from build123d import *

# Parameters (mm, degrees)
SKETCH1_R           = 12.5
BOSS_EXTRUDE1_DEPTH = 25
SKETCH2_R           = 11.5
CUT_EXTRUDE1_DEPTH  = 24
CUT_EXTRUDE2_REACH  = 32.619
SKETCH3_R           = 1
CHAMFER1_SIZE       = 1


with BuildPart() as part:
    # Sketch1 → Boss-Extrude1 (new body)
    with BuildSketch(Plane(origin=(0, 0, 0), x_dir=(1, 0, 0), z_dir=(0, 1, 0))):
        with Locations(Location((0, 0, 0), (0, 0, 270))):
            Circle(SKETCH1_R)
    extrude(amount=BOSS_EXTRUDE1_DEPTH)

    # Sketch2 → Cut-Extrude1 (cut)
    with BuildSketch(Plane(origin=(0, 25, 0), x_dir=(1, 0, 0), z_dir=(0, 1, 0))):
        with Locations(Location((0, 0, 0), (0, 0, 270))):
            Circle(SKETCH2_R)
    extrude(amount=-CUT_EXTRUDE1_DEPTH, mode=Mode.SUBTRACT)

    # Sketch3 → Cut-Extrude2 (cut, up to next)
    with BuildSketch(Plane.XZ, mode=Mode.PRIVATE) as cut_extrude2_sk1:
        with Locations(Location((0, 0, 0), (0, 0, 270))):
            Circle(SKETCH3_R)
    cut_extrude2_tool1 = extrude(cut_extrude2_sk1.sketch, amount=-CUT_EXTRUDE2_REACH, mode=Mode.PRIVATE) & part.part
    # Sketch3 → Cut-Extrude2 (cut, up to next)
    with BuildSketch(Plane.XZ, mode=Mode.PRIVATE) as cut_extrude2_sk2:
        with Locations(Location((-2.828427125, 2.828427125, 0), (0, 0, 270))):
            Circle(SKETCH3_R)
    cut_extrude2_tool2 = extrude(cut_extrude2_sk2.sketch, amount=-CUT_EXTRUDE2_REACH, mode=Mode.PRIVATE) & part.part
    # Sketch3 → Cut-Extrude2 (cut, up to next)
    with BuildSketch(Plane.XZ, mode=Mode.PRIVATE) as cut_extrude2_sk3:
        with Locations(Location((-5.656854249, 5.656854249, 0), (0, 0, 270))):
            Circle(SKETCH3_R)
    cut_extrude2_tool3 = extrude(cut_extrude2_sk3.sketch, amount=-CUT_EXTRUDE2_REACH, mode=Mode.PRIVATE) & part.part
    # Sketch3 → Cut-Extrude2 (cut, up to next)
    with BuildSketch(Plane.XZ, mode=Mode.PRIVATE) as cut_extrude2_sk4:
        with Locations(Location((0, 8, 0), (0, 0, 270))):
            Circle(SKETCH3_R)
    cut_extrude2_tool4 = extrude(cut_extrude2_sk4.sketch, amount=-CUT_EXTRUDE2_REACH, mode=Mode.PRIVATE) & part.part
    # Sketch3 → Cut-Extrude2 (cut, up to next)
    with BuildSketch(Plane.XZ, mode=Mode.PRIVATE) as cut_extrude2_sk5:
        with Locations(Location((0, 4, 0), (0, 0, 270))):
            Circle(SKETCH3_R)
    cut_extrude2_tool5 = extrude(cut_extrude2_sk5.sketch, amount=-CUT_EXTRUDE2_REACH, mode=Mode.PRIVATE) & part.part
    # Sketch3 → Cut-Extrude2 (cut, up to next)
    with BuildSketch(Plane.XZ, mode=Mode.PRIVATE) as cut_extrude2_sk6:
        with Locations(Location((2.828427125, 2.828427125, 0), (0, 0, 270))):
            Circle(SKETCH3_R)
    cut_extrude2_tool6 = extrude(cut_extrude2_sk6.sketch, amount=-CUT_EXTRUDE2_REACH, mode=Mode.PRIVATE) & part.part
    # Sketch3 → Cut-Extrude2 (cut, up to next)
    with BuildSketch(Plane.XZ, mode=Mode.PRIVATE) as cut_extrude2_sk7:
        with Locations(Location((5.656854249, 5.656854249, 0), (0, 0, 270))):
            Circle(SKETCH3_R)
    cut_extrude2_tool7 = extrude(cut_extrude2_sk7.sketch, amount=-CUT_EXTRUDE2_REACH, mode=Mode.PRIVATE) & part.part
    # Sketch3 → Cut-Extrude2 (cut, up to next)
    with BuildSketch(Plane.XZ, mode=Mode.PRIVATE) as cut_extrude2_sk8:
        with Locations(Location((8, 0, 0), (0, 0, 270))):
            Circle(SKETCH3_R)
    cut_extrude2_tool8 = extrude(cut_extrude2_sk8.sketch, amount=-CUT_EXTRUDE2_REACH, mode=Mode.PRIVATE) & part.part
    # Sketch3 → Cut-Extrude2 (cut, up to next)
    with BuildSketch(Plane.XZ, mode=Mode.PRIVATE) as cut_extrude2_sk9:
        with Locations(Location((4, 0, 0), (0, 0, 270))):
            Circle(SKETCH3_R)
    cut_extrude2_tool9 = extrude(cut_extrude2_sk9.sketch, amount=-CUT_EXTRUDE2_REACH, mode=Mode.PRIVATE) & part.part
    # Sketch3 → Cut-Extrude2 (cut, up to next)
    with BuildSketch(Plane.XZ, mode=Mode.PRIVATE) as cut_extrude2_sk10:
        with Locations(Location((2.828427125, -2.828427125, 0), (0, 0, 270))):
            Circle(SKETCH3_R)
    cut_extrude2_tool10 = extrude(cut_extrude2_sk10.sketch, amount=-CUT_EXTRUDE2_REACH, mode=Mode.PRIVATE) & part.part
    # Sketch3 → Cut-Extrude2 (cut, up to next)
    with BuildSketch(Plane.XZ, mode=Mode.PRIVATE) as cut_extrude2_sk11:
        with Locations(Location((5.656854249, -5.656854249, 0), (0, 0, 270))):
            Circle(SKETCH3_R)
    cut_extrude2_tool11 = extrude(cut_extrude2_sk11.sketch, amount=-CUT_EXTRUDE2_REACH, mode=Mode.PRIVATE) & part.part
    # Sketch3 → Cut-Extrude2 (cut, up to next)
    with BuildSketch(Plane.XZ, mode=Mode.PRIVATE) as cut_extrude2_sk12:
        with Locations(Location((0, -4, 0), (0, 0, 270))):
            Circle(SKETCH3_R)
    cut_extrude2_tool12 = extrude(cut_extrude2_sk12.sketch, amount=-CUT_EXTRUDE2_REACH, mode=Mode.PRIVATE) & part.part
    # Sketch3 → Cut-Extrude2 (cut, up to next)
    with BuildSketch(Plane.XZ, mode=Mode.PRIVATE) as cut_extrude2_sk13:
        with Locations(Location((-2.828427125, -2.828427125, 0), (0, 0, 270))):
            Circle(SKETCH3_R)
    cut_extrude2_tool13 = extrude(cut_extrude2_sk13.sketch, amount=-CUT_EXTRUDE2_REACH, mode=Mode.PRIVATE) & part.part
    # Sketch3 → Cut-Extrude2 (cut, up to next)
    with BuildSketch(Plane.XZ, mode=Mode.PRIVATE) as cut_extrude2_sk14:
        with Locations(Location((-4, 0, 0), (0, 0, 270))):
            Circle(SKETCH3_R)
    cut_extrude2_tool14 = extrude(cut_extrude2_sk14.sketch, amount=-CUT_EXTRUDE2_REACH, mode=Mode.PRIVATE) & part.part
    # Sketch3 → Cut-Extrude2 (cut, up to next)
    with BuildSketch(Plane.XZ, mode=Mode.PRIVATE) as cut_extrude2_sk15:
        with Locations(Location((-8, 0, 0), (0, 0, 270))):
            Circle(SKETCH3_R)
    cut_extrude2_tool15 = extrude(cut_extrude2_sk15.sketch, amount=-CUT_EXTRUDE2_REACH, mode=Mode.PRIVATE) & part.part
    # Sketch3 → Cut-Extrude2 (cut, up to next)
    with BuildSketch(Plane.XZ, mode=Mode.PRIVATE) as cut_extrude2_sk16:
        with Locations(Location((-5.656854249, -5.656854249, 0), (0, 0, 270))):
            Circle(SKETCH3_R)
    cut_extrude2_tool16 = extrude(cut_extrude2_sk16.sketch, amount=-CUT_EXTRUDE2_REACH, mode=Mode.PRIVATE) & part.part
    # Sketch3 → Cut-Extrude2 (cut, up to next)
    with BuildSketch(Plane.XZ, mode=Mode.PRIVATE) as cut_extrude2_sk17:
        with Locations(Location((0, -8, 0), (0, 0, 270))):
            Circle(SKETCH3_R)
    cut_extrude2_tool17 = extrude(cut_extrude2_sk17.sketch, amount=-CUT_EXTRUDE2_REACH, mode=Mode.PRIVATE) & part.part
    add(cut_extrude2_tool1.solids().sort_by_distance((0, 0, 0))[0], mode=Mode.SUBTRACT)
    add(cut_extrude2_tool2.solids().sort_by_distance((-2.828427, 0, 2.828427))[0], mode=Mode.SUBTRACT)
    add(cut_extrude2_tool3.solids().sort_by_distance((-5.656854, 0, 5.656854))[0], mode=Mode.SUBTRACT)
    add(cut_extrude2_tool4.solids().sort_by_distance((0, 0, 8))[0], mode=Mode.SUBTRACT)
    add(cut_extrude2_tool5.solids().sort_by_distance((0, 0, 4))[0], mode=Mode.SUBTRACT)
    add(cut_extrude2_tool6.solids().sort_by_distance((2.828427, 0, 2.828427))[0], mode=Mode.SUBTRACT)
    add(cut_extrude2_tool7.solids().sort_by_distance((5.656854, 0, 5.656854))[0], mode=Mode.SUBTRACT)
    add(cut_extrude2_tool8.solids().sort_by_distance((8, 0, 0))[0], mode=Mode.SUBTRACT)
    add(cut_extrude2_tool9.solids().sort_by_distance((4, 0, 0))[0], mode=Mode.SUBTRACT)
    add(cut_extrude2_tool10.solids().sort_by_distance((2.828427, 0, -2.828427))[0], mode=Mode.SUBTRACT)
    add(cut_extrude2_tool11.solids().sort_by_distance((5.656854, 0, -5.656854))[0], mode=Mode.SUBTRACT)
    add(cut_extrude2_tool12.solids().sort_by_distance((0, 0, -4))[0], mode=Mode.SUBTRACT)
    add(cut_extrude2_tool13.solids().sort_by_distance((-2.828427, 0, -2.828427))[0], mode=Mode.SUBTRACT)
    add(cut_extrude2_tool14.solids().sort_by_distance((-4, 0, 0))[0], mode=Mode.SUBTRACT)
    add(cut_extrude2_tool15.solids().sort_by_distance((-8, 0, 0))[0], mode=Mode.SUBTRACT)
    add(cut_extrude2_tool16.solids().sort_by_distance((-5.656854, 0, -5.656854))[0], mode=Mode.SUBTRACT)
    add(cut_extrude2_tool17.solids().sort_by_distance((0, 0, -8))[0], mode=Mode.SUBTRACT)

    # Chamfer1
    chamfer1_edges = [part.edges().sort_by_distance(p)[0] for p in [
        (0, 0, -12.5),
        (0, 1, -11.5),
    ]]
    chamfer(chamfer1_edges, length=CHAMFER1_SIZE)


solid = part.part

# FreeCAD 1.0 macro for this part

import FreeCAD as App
import Part
import Sketcher

V = App.Vector


def edges_at(feature, points):
    """Names of the edges that pass closest to the given points."""
    edges = feature.Shape.Edges
    near = lambda p: min(range(len(edges)), key=lambda i: edges[i].distToShape(Part.Vertex(*p))[0])
    return sorted({f"Edge{near(p) + 1}" for p in points})

doc = App.newDocument("Part")
body = doc.addObject("PartDesign::Body", "Body")

# Sketch on XZ plane
sketch1 = body.newObject("Sketcher::SketchObject", "Sketch")
sketch1.AttachmentSupport = (doc.getObject("XZ_Plane"), [""])
sketch1.MapMode = "FlatFace"
sketch1.addGeometry(Part.Circle(V(0, 0, 0), V(0, 0, 1), 12.5), False)
sketch1.addConstraint([
    Sketcher.Constraint("Coincident", 0, 3, -1, 1),
    Sketcher.Constraint("Diameter", 0, 25.0),
])
pad1 = body.newObject("PartDesign::Pad", "Pad")
pad1.Profile = sketch1
pad1.Length = 25
pad1.Reversed = True

# Sketch on XZ plane
sketch2 = body.newObject("Sketcher::SketchObject", "Sketch001")
sketch2.AttachmentSupport = (doc.getObject("XZ_Plane"), [""])
sketch2.MapMode = "FlatFace"
sketch2.AttachmentOffset = App.Placement(V(0, 0, -25), App.Rotation())
sketch2.addGeometry(Part.Circle(V(0, 0, 0), V(0, 0, 1), 11.5), False)
sketch2.addConstraint([
    Sketcher.Constraint("Coincident", 0, 3, -1, 1),
    Sketcher.Constraint("Diameter", 0, 23.0),
])
pocket1 = body.newObject("PartDesign::Pocket", "Pocket")
pocket1.Profile = sketch2
pocket1.Length = 24
pocket1.Reversed = True

# Sketch on XZ plane
sketch3 = body.newObject("Sketcher::SketchObject", "Sketch002")
sketch3.AttachmentSupport = (doc.getObject("XZ_Plane"), [""])
sketch3.MapMode = "FlatFace"
sketch3.addGeometry(Part.Circle(V(0, 0, 0), V(0, 0, 1), 1), False)
sketch3.addConstraint([
    Sketcher.Constraint("Coincident", 0, 3, -1, 1),
    Sketcher.Constraint("Diameter", 0, 2.0),
])
pocket2 = body.newObject("PartDesign::Pocket", "Pocket001")
pocket2.Profile = sketch3
pocket2.Type = "UpToFirst"

# Sketch on XZ plane
sketch4 = body.newObject("Sketcher::SketchObject", "Sketch003")
sketch4.AttachmentSupport = (doc.getObject("XZ_Plane"), [""])
sketch4.MapMode = "FlatFace"
sketch4.addGeometry(Part.Circle(V(-2.828427, 2.828427, 0), V(0, 0, 1), 1), False)
sketch4.addConstraint([
    Sketcher.Constraint("Diameter", 0, 2.0),
    Sketcher.Constraint("DistanceX", 0, 3, -1, 1, 2.828427),
    Sketcher.Constraint("DistanceY", -1, 1, 0, 3, 2.828427),
])
pocket3 = body.newObject("PartDesign::Pocket", "Pocket002")
pocket3.Profile = sketch4
pocket3.Type = "UpToFirst"

# Sketch on XZ plane
sketch5 = body.newObject("Sketcher::SketchObject", "Sketch004")
sketch5.AttachmentSupport = (doc.getObject("XZ_Plane"), [""])
sketch5.MapMode = "FlatFace"
sketch5.addGeometry(Part.Circle(V(-5.656854, 5.656854, 0), V(0, 0, 1), 1), False)
sketch5.addConstraint([
    Sketcher.Constraint("Diameter", 0, 2.0),
    Sketcher.Constraint("DistanceX", 0, 3, -1, 1, 5.656854),
    Sketcher.Constraint("DistanceY", -1, 1, 0, 3, 5.656854),
])
pocket4 = body.newObject("PartDesign::Pocket", "Pocket003")
pocket4.Profile = sketch5
pocket4.Type = "UpToFirst"

# Sketch on XZ plane
sketch6 = body.newObject("Sketcher::SketchObject", "Sketch005")
sketch6.AttachmentSupport = (doc.getObject("XZ_Plane"), [""])
sketch6.MapMode = "FlatFace"
sketch6.addGeometry(Part.Circle(V(0, 8, 0), V(0, 0, 1), 1), False)
sketch6.addConstraint([
    Sketcher.Constraint("PointOnObject", 0, 3, -2),
    Sketcher.Constraint("Diameter", 0, 2.0),
    Sketcher.Constraint("DistanceY", -1, 1, 0, 3, 8.0),
])
pocket5 = body.newObject("PartDesign::Pocket", "Pocket004")
pocket5.Profile = sketch6
pocket5.Type = "UpToFirst"

# Sketch on XZ plane
sketch7 = body.newObject("Sketcher::SketchObject", "Sketch006")
sketch7.AttachmentSupport = (doc.getObject("XZ_Plane"), [""])
sketch7.MapMode = "FlatFace"
sketch7.addGeometry(Part.Circle(V(0, 4, 0), V(0, 0, 1), 1), False)
sketch7.addConstraint([
    Sketcher.Constraint("PointOnObject", 0, 3, -2),
    Sketcher.Constraint("Diameter", 0, 2.0),
    Sketcher.Constraint("DistanceY", -1, 1, 0, 3, 4.0),
])
pocket6 = body.newObject("PartDesign::Pocket", "Pocket005")
pocket6.Profile = sketch7
pocket6.Type = "UpToFirst"

# Sketch on XZ plane
sketch8 = body.newObject("Sketcher::SketchObject", "Sketch007")
sketch8.AttachmentSupport = (doc.getObject("XZ_Plane"), [""])
sketch8.MapMode = "FlatFace"
sketch8.addGeometry(Part.Circle(V(2.828427, 2.828427, 0), V(0, 0, 1), 1), False)
sketch8.addConstraint([
    Sketcher.Constraint("Diameter", 0, 2.0),
    Sketcher.Constraint("DistanceX", -1, 1, 0, 3, 2.828427),
    Sketcher.Constraint("DistanceY", -1, 1, 0, 3, 2.828427),
])
pocket7 = body.newObject("PartDesign::Pocket", "Pocket006")
pocket7.Profile = sketch8
pocket7.Type = "UpToFirst"

# Sketch on XZ plane
sketch9 = body.newObject("Sketcher::SketchObject", "Sketch008")
sketch9.AttachmentSupport = (doc.getObject("XZ_Plane"), [""])
sketch9.MapMode = "FlatFace"
sketch9.addGeometry(Part.Circle(V(5.656854, 5.656854, 0), V(0, 0, 1), 1), False)
sketch9.addConstraint([
    Sketcher.Constraint("Diameter", 0, 2.0),
    Sketcher.Constraint("DistanceX", -1, 1, 0, 3, 5.656854),
    Sketcher.Constraint("DistanceY", -1, 1, 0, 3, 5.656854),
])
pocket8 = body.newObject("PartDesign::Pocket", "Pocket007")
pocket8.Profile = sketch9
pocket8.Type = "UpToFirst"

# Sketch on XZ plane
sketch10 = body.newObject("Sketcher::SketchObject", "Sketch009")
sketch10.AttachmentSupport = (doc.getObject("XZ_Plane"), [""])
sketch10.MapMode = "FlatFace"
sketch10.addGeometry(Part.Circle(V(8, 0, 0), V(0, 0, 1), 1), False)
sketch10.addConstraint([
    Sketcher.Constraint("PointOnObject", 0, 3, -1),
    Sketcher.Constraint("Diameter", 0, 2.0),
    Sketcher.Constraint("DistanceX", -1, 1, 0, 3, 8.0),
])
pocket9 = body.newObject("PartDesign::Pocket", "Pocket008")
pocket9.Profile = sketch10
pocket9.Type = "UpToFirst"

# Sketch on XZ plane
sketch11 = body.newObject("Sketcher::SketchObject", "Sketch010")
sketch11.AttachmentSupport = (doc.getObject("XZ_Plane"), [""])
sketch11.MapMode = "FlatFace"
sketch11.addGeometry(Part.Circle(V(4, 0, 0), V(0, 0, 1), 1), False)
sketch11.addConstraint([
    Sketcher.Constraint("PointOnObject", 0, 3, -1),
    Sketcher.Constraint("Diameter", 0, 2.0),
    Sketcher.Constraint("DistanceX", -1, 1, 0, 3, 4.0),
])
pocket10 = body.newObject("PartDesign::Pocket", "Pocket009")
pocket10.Profile = sketch11
pocket10.Type = "UpToFirst"

# Sketch on XZ plane
sketch12 = body.newObject("Sketcher::SketchObject", "Sketch011")
sketch12.AttachmentSupport = (doc.getObject("XZ_Plane"), [""])
sketch12.MapMode = "FlatFace"
sketch12.addGeometry(Part.Circle(V(2.828427, -2.828427, 0), V(0, 0, 1), 1), False)
sketch12.addConstraint([
    Sketcher.Constraint("Diameter", 0, 2.0),
    Sketcher.Constraint("DistanceX", -1, 1, 0, 3, 2.828427),
    Sketcher.Constraint("DistanceY", 0, 3, -1, 1, 2.828427),
])
pocket11 = body.newObject("PartDesign::Pocket", "Pocket010")
pocket11.Profile = sketch12
pocket11.Type = "UpToFirst"

# Sketch on XZ plane
sketch13 = body.newObject("Sketcher::SketchObject", "Sketch012")
sketch13.AttachmentSupport = (doc.getObject("XZ_Plane"), [""])
sketch13.MapMode = "FlatFace"
sketch13.addGeometry(Part.Circle(V(5.656854, -5.656854, 0), V(0, 0, 1), 1), False)
sketch13.addConstraint([
    Sketcher.Constraint("Diameter", 0, 2.0),
    Sketcher.Constraint("DistanceX", -1, 1, 0, 3, 5.656854),
    Sketcher.Constraint("DistanceY", 0, 3, -1, 1, 5.656854),
])
pocket12 = body.newObject("PartDesign::Pocket", "Pocket011")
pocket12.Profile = sketch13
pocket12.Type = "UpToFirst"

# Sketch on XZ plane
sketch14 = body.newObject("Sketcher::SketchObject", "Sketch013")
sketch14.AttachmentSupport = (doc.getObject("XZ_Plane"), [""])
sketch14.MapMode = "FlatFace"
sketch14.addGeometry(Part.Circle(V(0, -4, 0), V(0, 0, 1), 1), False)
sketch14.addConstraint([
    Sketcher.Constraint("PointOnObject", 0, 3, -2),
    Sketcher.Constraint("Diameter", 0, 2.0),
    Sketcher.Constraint("DistanceY", 0, 3, -1, 1, 4.0),
])
pocket13 = body.newObject("PartDesign::Pocket", "Pocket012")
pocket13.Profile = sketch14
pocket13.Type = "UpToFirst"

# Sketch on XZ plane
sketch15 = body.newObject("Sketcher::SketchObject", "Sketch014")
sketch15.AttachmentSupport = (doc.getObject("XZ_Plane"), [""])
sketch15.MapMode = "FlatFace"
sketch15.addGeometry(Part.Circle(V(-2.828427, -2.828427, 0), V(0, 0, 1), 1), False)
sketch15.addConstraint([
    Sketcher.Constraint("Diameter", 0, 2.0),
    Sketcher.Constraint("DistanceX", 0, 3, -1, 1, 2.828427),
    Sketcher.Constraint("DistanceY", 0, 3, -1, 1, 2.828427),
])
pocket14 = body.newObject("PartDesign::Pocket", "Pocket013")
pocket14.Profile = sketch15
pocket14.Type = "UpToFirst"

# Sketch on XZ plane
sketch16 = body.newObject("Sketcher::SketchObject", "Sketch015")
sketch16.AttachmentSupport = (doc.getObject("XZ_Plane"), [""])
sketch16.MapMode = "FlatFace"
sketch16.addGeometry(Part.Circle(V(-4, 0, 0), V(0, 0, 1), 1), False)
sketch16.addConstraint([
    Sketcher.Constraint("PointOnObject", 0, 3, -1),
    Sketcher.Constraint("Diameter", 0, 2.0),
    Sketcher.Constraint("DistanceX", 0, 3, -1, 1, 4.0),
])
pocket15 = body.newObject("PartDesign::Pocket", "Pocket014")
pocket15.Profile = sketch16
pocket15.Type = "UpToFirst"

# Sketch on XZ plane
sketch17 = body.newObject("Sketcher::SketchObject", "Sketch016")
sketch17.AttachmentSupport = (doc.getObject("XZ_Plane"), [""])
sketch17.MapMode = "FlatFace"
sketch17.addGeometry(Part.Circle(V(-8, 0, 0), V(0, 0, 1), 1), False)
sketch17.addConstraint([
    Sketcher.Constraint("PointOnObject", 0, 3, -1),
    Sketcher.Constraint("Diameter", 0, 2.0),
    Sketcher.Constraint("DistanceX", 0, 3, -1, 1, 8.0),
])
pocket16 = body.newObject("PartDesign::Pocket", "Pocket015")
pocket16.Profile = sketch17
pocket16.Type = "UpToFirst"

# Sketch on XZ plane
sketch18 = body.newObject("Sketcher::SketchObject", "Sketch017")
sketch18.AttachmentSupport = (doc.getObject("XZ_Plane"), [""])
sketch18.MapMode = "FlatFace"
sketch18.addGeometry(Part.Circle(V(-5.656854, -5.656854, 0), V(0, 0, 1), 1), False)
sketch18.addConstraint([
    Sketcher.Constraint("Diameter", 0, 2.0),
    Sketcher.Constraint("DistanceX", 0, 3, -1, 1, 5.656854),
    Sketcher.Constraint("DistanceY", 0, 3, -1, 1, 5.656854),
])
pocket17 = body.newObject("PartDesign::Pocket", "Pocket016")
pocket17.Profile = sketch18
pocket17.Type = "UpToFirst"

# Sketch on XZ plane
sketch19 = body.newObject("Sketcher::SketchObject", "Sketch018")
sketch19.AttachmentSupport = (doc.getObject("XZ_Plane"), [""])
sketch19.MapMode = "FlatFace"
sketch19.addGeometry(Part.Circle(V(0, -8, 0), V(0, 0, 1), 1), False)
sketch19.addConstraint([
    Sketcher.Constraint("PointOnObject", 0, 3, -2),
    Sketcher.Constraint("Diameter", 0, 2.0),
    Sketcher.Constraint("DistanceY", 0, 3, -1, 1, 8.0),
])
pocket18 = body.newObject("PartDesign::Pocket", "Pocket017")
pocket18.Profile = sketch19
pocket18.Type = "UpToFirst"
doc.recompute()

chamfer = body.newObject("PartDesign::Chamfer", "Chamfer")
chamfer.Base = (pocket18, edges_at(pocket18, [(0, 0, -12.5), (0, 1, -11.5)]))
chamfer.Size = 1

doc.recompute()
